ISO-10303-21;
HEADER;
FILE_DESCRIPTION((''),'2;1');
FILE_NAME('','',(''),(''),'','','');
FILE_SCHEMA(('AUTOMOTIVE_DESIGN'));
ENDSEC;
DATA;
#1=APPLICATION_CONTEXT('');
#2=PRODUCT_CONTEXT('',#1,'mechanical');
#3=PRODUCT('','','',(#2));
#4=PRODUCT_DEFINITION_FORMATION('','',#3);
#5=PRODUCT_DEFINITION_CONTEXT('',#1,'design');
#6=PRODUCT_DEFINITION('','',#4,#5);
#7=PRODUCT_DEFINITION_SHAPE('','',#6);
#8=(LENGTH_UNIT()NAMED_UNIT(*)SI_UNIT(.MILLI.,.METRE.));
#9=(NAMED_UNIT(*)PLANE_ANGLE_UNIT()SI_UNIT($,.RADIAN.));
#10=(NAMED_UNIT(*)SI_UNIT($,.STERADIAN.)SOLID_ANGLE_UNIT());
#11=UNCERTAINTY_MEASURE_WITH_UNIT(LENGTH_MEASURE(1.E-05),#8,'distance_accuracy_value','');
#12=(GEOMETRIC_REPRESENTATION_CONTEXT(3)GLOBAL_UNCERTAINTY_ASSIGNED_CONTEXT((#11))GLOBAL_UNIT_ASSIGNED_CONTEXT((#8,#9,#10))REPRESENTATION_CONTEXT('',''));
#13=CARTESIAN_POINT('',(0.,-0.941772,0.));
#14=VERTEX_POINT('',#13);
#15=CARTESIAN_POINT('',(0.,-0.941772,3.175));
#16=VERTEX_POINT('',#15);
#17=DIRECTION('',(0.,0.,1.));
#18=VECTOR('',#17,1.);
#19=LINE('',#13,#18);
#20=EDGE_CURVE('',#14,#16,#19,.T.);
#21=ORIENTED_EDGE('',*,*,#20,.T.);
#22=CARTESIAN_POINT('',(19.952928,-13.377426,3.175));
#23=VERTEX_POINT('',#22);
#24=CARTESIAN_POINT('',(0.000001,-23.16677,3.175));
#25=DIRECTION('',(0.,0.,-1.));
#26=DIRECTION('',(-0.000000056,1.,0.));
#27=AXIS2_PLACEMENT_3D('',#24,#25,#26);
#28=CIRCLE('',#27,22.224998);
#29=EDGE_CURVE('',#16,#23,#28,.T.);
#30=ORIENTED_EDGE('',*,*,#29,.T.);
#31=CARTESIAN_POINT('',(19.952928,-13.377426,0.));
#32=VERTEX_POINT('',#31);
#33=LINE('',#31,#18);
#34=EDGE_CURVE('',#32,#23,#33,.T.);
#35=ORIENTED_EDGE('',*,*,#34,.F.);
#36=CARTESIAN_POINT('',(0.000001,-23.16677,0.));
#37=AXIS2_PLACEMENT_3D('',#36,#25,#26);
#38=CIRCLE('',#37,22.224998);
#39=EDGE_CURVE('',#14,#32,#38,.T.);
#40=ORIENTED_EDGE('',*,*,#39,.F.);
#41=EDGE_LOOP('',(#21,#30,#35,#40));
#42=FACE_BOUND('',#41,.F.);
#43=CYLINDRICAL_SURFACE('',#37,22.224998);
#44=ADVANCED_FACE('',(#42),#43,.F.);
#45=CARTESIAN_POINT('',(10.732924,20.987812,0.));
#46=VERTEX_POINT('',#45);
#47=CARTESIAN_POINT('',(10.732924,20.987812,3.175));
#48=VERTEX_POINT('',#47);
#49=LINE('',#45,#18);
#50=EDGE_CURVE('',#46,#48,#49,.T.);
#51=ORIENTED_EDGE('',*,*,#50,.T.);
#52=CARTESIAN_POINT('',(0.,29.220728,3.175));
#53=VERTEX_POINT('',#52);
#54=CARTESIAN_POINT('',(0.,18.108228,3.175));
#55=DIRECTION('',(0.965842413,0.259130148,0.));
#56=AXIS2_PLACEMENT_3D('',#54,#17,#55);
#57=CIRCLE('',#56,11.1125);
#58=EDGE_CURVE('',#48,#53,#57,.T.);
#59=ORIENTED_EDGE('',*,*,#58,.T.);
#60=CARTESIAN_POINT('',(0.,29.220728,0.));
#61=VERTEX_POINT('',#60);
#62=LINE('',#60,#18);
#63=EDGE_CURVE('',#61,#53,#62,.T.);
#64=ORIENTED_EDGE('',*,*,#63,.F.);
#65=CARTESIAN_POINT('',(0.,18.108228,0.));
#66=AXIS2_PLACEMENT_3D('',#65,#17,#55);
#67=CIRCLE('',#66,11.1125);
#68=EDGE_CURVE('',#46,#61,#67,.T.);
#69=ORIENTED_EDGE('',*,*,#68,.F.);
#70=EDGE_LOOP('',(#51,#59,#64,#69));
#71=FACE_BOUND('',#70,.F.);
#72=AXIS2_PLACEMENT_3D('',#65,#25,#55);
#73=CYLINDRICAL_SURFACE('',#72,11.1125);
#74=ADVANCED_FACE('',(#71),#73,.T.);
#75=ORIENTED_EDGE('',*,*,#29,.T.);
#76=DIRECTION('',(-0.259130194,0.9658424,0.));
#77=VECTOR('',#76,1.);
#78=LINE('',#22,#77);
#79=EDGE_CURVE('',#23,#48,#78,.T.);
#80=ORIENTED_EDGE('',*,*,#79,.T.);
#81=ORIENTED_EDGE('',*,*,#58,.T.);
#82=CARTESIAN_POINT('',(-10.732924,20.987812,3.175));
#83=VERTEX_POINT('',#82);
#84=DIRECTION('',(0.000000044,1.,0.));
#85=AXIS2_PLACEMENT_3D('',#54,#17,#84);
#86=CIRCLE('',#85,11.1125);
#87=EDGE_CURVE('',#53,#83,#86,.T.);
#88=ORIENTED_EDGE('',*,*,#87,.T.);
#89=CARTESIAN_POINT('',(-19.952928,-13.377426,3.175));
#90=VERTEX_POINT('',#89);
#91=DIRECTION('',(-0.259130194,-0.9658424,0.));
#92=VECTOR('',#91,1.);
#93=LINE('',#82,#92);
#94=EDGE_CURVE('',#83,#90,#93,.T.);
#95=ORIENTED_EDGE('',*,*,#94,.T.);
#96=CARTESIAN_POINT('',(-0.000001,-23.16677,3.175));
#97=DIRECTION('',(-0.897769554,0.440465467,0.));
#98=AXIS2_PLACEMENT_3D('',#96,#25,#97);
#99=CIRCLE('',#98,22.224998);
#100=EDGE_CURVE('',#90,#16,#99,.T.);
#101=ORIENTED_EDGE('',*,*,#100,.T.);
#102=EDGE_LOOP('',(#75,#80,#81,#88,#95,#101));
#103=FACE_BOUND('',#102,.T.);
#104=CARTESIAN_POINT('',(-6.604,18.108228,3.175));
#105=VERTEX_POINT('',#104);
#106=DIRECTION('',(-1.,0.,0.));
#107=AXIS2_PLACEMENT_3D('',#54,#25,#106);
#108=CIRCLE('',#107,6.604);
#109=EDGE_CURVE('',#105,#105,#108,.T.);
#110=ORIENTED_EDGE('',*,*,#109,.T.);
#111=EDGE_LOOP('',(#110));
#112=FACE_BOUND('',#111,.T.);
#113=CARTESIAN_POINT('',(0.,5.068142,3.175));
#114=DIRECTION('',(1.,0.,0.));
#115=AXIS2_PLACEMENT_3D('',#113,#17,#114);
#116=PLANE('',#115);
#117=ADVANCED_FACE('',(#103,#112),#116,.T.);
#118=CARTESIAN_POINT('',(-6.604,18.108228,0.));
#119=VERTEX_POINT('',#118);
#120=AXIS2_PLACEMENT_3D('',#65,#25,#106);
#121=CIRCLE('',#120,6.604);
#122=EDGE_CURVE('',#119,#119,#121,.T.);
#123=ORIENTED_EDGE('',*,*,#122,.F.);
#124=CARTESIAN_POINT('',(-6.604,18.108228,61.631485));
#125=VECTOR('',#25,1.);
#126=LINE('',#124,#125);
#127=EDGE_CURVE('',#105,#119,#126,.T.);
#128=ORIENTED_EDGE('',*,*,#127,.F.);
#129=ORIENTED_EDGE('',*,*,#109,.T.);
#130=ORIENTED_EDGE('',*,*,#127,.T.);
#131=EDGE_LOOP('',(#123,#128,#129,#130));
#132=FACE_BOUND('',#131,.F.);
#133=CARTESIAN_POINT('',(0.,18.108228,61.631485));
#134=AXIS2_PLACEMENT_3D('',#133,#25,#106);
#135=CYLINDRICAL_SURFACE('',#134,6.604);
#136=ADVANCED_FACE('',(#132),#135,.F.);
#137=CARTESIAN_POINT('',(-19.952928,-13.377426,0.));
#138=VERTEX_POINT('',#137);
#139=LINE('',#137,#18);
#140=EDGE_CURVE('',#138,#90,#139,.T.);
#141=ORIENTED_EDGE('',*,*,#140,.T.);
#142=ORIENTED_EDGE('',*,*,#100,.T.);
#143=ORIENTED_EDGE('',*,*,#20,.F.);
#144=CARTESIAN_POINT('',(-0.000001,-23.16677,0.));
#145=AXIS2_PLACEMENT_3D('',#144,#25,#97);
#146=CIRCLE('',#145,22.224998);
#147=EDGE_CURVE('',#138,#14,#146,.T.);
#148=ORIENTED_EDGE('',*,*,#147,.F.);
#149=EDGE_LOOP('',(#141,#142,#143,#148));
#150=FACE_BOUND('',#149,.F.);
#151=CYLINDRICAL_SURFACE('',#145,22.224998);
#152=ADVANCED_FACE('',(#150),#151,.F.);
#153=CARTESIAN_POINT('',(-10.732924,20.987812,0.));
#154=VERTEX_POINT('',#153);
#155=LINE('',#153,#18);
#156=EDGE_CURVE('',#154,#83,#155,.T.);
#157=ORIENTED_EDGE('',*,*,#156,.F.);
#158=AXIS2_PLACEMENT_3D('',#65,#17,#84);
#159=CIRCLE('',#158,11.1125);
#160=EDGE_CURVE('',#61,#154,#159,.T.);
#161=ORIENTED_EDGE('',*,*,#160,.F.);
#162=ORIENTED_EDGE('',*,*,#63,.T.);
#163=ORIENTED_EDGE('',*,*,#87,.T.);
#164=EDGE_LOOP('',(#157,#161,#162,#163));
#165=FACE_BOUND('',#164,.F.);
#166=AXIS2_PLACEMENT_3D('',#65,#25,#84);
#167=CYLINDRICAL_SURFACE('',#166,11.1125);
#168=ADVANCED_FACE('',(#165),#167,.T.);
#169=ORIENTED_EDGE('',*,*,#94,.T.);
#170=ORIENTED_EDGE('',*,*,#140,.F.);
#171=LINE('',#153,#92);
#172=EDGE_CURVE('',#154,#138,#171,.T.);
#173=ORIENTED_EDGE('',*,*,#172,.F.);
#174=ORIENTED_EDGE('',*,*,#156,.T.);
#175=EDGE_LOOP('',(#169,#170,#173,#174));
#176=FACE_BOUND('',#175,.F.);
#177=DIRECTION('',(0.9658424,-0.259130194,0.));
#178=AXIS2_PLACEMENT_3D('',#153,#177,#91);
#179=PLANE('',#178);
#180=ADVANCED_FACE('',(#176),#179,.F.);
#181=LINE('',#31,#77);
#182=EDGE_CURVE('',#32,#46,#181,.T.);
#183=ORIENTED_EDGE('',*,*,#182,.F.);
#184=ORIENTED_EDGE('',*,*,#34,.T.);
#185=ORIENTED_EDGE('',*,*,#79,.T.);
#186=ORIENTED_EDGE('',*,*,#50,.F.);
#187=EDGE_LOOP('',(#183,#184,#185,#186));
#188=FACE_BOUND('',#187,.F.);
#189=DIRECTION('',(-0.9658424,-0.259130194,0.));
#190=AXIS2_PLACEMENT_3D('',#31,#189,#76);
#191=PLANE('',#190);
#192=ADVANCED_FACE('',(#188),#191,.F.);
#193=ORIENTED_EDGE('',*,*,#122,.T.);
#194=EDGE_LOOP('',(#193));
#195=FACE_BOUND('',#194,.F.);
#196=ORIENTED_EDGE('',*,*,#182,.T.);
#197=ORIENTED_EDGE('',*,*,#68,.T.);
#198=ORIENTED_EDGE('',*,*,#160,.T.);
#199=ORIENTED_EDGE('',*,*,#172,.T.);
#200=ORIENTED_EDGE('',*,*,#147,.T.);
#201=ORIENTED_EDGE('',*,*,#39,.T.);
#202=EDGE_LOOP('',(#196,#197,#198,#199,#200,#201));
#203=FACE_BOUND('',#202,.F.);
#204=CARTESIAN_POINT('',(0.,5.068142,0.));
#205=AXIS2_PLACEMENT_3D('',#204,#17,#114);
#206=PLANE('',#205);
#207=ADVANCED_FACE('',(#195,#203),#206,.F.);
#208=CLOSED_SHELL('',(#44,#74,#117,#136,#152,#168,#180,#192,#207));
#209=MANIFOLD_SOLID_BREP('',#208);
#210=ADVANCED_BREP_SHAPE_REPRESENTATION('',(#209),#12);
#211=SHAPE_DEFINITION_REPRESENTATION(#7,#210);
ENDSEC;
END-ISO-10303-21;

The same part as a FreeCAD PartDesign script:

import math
import FreeCAD as App
import Part
import Sketcher
Q = App.Units.Quantity

doc = App.newDocument("Part")
body = doc.addObject("PartDesign::Body", "Body")

# Sketch on XY plane
sketch1 = doc.addObject("Sketcher::SketchObject", "Sketch")
body.addObject(sketch1)
sketch1.AttachmentSupport = (doc.XY_Plane, [""])
sketch1.MapMode = "FlatFace"
sketch1.addGeometry([
    Part.ArcOfCircle(Part.Circle(App.Vector(0, 18, 0), App.Vector(0, 0, 1), 11), math.radians(15), math.radians(90)),  # 0
    Part.ArcOfCircle(Part.Circle(App.Vector(0, 18, 0), App.Vector(0, 0, 1), 11), math.radians(90), math.radians(165)),  # 1
    Part.LineSegment(App.Vector(-11, 21, 0), App.Vector(-20, -13, 0)),  # 2
    Part.ArcOfCircle(Part.Circle(App.Vector(0, -23, 0), App.Vector(0, 0, 1), 22), math.radians(90), math.radians(154)),  # 3
    Part.ArcOfCircle(Part.Circle(App.Vector(0, -23, 0), App.Vector(0, 0, 1), 22), math.radians(26), math.radians(90)),  # 4
    Part.LineSegment(App.Vector(20, -13, 0), App.Vector(11, 21, 0)),  # 5
], False)
sketch1.addConstraint([
    Sketcher.Constraint("Tangent", 0, 2, 1, 1),
    Sketcher.Constraint("Tangent", 1, 2, 2, 1),
    Sketcher.Constraint("Coincident", 2, 2, 3, 2),
    Sketcher.Constraint("Tangent", 3, 1, 4, 2),
    Sketcher.Constraint("Coincident", 4, 1, 5, 1),
    Sketcher.Constraint("Tangent", 5, 2, 0, 1),
    Sketcher.Constraint("Equal", 0, 1),
    Sketcher.Constraint("Equal", 3, 4),
    Sketcher.Constraint("Symmetric", 2, 2, 4, 1, -2),
    Sketcher.Constraint("PointOnObject", 0, 3, -2),
    Sketcher.Constraint("PointOnObject", 0, 2, -2),
    Sketcher.Constraint("PointOnObject", 3, 1, -2),
    Sketcher.Constraint("Radius", 0, Q("0.4375 in")),
    Sketcher.Constraint("Radius", 3, Q("0.8749999 in")),
    Sketcher.Constraint("DistanceY", 3, 1, 0, 3, Q("0.75 in")),
    Sketcher.Constraint("DistanceY", -1, 1, 0, 3, Q("18.108228 mm")),
    Sketcher.Constraint("DistanceX", 2, 2, -1, 1, Q("19.952928 mm")),
])
pad1 = doc.addObject("PartDesign::Pad", "Pad")
body.addObject(pad1)
pad1.Profile = sketch1
pad1.Length = Q("0.125 in")

# Sketch on XY plane
sketch2 = doc.addObject("Sketcher::SketchObject", "Sketch001")
body.addObject(sketch2)
sketch2.AttachmentSupport = (doc.XY_Plane, [""])
sketch2.MapMode = "FlatFace"
sketch2.AttachmentOffset = App.Placement(App.Vector(0, 0, 0.125 * 25.4), App.Rotation())
sketch2.addGeometry(Part.Circle(App.Vector(0, 18, 0), App.Vector(0, 0, 1), 7), False)
sketch2.addConstraint([
    Sketcher.Constraint("PointOnObject", 0, 3, -2),
    Sketcher.Constraint("Diameter", 0, Q("0.52 in")),
    Sketcher.Constraint("DistanceY", -1, 1, 0, 3, Q("18.108228 mm")),
])
doc.recompute()
hole = doc.addObject("PartDesign::Hole", "Hole")
body.addObject(hole)
hole.Profile = sketch2
hole.ThreadType = "None"
hole.Diameter = Q("0.52 in")
hole.DepthType = "ThroughAll"

doc.recompute()
